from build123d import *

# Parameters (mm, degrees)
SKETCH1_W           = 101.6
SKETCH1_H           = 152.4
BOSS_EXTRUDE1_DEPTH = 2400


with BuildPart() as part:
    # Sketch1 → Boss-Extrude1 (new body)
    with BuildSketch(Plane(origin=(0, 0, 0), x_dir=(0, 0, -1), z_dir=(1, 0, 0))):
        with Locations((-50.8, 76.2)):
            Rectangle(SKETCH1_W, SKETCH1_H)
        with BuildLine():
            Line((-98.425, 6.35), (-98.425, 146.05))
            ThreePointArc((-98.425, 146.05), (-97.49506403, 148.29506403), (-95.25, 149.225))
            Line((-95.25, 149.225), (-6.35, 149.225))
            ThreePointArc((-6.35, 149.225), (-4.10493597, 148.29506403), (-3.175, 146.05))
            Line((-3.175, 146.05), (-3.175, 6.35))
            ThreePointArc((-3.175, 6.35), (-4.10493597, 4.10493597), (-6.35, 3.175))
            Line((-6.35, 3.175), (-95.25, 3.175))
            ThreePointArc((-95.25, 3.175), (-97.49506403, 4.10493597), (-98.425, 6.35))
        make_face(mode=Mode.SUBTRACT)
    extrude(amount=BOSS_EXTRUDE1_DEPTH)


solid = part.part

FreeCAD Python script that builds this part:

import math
import FreeCAD as App
import Part
import Sketcher
from FreeCAD import Vector
Q = App.Units.Quantity

doc = App.newDocument("Part")
body = doc.addObject("PartDesign::Body", "Body")

# Sketch on YZ plane
sketch1 = body.newObject("Sketcher::SketchObject", "Sketch")
sketch1.AttachmentSupport = (doc.getObject("YZ_Plane"), [""])
sketch1.MapMode = "FlatFace"
sketch1.addGeometry(Part.LineSegment(Vector(152.4, 101.6, 0), Vector(0, 101.6, 0)), False)
sketch1.addGeometry(Part.LineSegment(Vector(0, 101.6, 0), Vector(0, 0, 0)), False)
sketch1.addGeometry(Part.LineSegment(Vector(0, 0, 0), Vector(152.4, 0, 0)), False)
sketch1.addGeometry(Part.LineSegment(Vector(152.4, 0, 0), Vector(152.4, 101.6, 0)), False)
sketch1.addGeometry(Part.ArcOfCircle(Part.Circle(Vector(6.4, 95.2, 0), Vector(0, 0, 1), 3.2), math.radians(90), math.radians(180)), False)
sketch1.addGeometry(Part.LineSegment(Vector(6.3, 98.4, 0), Vector(146.1, 98.4, 0)), False)
sketch1.addGeometry(Part.ArcOfCircle(Part.Circle(Vector(146, 95.2, 0), Vector(0, 0, 1), 3.2), math.radians(0), math.radians(90)), False)
sketch1.addGeometry(Part.LineSegment(Vector(149.2, 95.2, 0), Vector(149.2, 6.3, 0)), False)
sketch1.addGeometry(Part.ArcOfCircle(Part.Circle(Vector(146, 6.4, 0), Vector(0, 0, 1), 3.2), math.radians(-90), math.radians(0)), False)
sketch1.addGeometry(Part.LineSegment(Vector(146.1, 3.2, 0), Vector(6.3, 3.2, 0)), False)
sketch1.addGeometry(Part.ArcOfCircle(Part.Circle(Vector(6.4, 6.4, 0), Vector(0, 0, 1), 3.2), math.radians(-180), math.radians(-90)), False)
sketch1.addGeometry(Part.LineSegment(Vector(3.2, 6.3, 0), Vector(3.2, 95.2, 0)), False)
sketch1.addConstraint(Sketcher.Constraint("Coincident", 0, 2, 1, 1))
sketch1.addConstraint(Sketcher.Constraint("Coincident", 1, 2, 2, 1))
sketch1.addConstraint(Sketcher.Constraint("Coincident", 2, 2, 3, 1))
sketch1.addConstraint(Sketcher.Constraint("Coincident", 3, 2, 0, 1))
sketch1.addConstraint(Sketcher.Constraint("Tangent", 4, 1, 5, 1))
sketch1.addConstraint(Sketcher.Constraint("Tangent", 5, 2, 6, 2))
sketch1.addConstraint(Sketcher.Constraint("Tangent", 6, 1, 7, 1))
sketch1.addConstraint(Sketcher.Constraint("Tangent", 7, 2, 8, 2))
sketch1.addConstraint(Sketcher.Constraint("Tangent", 8, 1, 9, 1))
sketch1.addConstraint(Sketcher.Constraint("Tangent", 9, 2, 10, 2))
sketch1.addConstraint(Sketcher.Constraint("Tangent", 10, 1, 11, 1))
sketch1.addConstraint(Sketcher.Constraint("Tangent", 11, 2, 4, 2))
sketch1.addConstraint(Sketcher.Constraint("Horizontal", 0))
sketch1.addConstraint(Sketcher.Constraint("Vertical", 1))
sketch1.addConstraint(Sketcher.Constraint("Horizontal", 2))
sketch1.addConstraint(Sketcher.Constraint("Vertical", 3))
sketch1.addConstraint(Sketcher.Constraint("Horizontal", 5))
sketch1.addConstraint(Sketcher.Constraint("Vertical", 7))
sketch1.addConstraint(Sketcher.Constraint("Horizontal", 9))
sketch1.addConstraint(Sketcher.Constraint("Vertical", 11))
sketch1.addConstraint(Sketcher.Constraint("Coincident", 1, 2, -1, 1))
sketch1.addConstraint(Sketcher.Constraint("Equal", 4, 6))
sketch1.addConstraint(Sketcher.Constraint("Equal", 6, 8))
sketch1.addConstraint(Sketcher.Constraint("Equal", 8, 10))
sketch1.addConstraint(Sketcher.Constraint("DistanceX", 0, 2, 0, 1, Q("6 in")))
sketch1.addConstraint(Sketcher.Constraint("DistanceY", 1, 2, 1, 1, Q("4 in")))
sketch1.addConstraint(Sketcher.Constraint("DistanceX", 5, 1, 5, 2, Q("5.5 in")))
sketch1.addConstraint(Sketcher.Constraint("DistanceY", 7, 2, 7, 1, Q("3.5 in")))
sketch1.addConstraint(Sketcher.Constraint("Radius", 4, Q("0.125 in")))
sketch1.addConstraint(Sketcher.Constraint("DistanceX", -1, 1, 4, 3, Q("0.25 in")))
sketch1.addConstraint(Sketcher.Constraint("DistanceY", -1, 1, 4, 3, Q("3.75 in")))
pad1 = body.newObject("PartDesign::Pad", "Pad")
pad1.Profile = sketch1
pad1.Length = 2400

doc.recompute()
